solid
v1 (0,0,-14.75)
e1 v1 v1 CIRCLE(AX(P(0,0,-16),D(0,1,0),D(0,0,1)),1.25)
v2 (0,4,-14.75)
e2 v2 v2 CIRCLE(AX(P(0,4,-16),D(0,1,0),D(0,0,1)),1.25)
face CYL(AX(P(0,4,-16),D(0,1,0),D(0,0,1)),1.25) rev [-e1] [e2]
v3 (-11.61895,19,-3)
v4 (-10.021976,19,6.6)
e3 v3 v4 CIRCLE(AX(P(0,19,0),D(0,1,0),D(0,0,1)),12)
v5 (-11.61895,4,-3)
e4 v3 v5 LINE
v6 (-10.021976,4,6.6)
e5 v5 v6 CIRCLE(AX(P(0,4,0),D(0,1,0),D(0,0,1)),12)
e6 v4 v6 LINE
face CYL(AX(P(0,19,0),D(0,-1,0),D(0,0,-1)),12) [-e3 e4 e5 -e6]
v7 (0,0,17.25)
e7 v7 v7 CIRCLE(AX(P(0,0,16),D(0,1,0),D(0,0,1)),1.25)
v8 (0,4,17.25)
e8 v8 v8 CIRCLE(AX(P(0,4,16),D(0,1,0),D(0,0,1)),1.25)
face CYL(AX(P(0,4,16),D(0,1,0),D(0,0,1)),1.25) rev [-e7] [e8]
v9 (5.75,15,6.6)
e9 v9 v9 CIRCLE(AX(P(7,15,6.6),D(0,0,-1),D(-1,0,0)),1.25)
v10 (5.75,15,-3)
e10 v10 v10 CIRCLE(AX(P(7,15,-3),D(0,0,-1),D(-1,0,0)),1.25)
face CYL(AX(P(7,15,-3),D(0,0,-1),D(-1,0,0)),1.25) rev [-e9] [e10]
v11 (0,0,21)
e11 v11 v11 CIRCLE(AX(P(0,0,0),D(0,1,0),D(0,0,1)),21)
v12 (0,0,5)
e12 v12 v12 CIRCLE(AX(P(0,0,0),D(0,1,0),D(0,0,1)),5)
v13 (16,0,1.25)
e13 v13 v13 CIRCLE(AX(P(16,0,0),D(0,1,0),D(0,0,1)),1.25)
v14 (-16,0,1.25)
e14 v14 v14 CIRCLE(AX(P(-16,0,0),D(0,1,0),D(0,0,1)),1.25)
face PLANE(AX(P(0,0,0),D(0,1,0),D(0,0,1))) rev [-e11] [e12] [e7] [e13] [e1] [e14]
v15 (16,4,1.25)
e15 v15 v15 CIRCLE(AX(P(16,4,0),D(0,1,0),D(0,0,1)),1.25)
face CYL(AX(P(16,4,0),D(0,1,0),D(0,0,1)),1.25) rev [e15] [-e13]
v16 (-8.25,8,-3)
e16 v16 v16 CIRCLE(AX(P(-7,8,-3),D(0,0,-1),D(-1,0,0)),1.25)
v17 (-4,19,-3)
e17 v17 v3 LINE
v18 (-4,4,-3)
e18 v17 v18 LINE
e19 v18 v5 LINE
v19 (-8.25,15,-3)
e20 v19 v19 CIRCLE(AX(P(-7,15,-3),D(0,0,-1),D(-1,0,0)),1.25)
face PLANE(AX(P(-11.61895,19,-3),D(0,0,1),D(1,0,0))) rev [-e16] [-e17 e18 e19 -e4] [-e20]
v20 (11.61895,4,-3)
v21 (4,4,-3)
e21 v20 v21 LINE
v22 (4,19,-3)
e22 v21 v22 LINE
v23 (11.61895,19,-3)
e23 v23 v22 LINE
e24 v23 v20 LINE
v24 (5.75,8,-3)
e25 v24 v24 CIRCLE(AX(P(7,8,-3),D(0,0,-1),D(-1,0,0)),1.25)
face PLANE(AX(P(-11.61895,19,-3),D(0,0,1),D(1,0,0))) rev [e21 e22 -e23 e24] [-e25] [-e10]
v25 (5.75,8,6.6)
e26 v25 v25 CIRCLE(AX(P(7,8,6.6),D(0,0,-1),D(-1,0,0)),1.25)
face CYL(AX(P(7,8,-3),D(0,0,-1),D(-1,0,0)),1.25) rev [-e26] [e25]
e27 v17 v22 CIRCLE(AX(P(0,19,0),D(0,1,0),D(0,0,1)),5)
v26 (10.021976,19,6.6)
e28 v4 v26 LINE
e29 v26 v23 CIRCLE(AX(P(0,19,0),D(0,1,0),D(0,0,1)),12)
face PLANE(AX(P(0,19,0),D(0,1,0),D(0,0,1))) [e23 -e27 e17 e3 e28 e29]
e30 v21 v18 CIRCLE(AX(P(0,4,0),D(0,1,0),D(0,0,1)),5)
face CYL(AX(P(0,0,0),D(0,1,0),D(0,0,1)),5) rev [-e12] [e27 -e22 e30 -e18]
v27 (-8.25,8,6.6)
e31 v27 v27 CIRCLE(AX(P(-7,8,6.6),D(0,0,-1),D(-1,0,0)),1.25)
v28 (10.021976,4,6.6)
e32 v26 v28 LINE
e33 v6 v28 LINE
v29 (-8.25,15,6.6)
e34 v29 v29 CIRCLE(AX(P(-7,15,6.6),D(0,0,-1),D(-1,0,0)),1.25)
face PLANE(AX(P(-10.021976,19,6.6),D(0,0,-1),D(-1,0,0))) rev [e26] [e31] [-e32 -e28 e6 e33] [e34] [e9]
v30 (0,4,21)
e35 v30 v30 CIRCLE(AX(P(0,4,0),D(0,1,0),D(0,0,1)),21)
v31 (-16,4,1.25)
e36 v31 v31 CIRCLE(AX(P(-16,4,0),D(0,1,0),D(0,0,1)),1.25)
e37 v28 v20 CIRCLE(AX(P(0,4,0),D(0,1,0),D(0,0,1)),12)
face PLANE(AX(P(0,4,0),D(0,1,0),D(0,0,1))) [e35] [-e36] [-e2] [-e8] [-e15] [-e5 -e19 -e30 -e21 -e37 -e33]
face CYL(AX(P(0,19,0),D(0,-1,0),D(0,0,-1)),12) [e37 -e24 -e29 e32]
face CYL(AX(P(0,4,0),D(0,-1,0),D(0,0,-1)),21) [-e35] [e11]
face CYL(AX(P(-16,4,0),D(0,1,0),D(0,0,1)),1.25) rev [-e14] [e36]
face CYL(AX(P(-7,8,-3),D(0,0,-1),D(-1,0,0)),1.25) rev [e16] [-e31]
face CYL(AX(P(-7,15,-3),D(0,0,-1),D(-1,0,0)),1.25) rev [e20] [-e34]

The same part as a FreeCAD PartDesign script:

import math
import FreeCAD as App
import Part
import Sketcher
Q = App.Units.Quantity

doc = App.newDocument("Part")
body = doc.addObject("PartDesign::Body", "Body")

# Sketch on XZ plane
sketch1 = body.newObject("Sketcher::SketchObject", "Sketch")
sketch1.AttachmentSupport = (doc.getObject("XZ_Plane"), [""])
sketch1.MapMode = "FlatFace"
sketch1.addGeometry(Part.Circle(App.Vector(0, 0, 0), App.Vector(0, 0, 1), 21), False)
sketch1.addConstraint(Sketcher.Constraint("Coincident", 0, 3, -1, 1))
sketch1.addConstraint(Sketcher.Constraint("Diameter", 0, Q("42 mm")))
pad1 = body.newObject("PartDesign::Pad", "Pad")
pad1.Profile = sketch1
pad1.Length = 4
pad1.Reversed = True

# Sketch on XZ plane
sketch2 = body.newObject("Sketcher::SketchObject", "Sketch001")
sketch2.AttachmentSupport = (doc.getObject("XZ_Plane"), [""])
sketch2.MapMode = "FlatFace"
sketch2.AttachmentOffset = App.Placement(App.Vector(0, 0, -4), App.Rotation())
sketch2.addGeometry(Part.Circle(App.Vector(0, -16, 0), App.Vector(0, 0, 1), 1.2), False)
sketch2.addGeometry(Part.Circle(App.Vector(16, 0, 0), App.Vector(0, 0, 1), 1.2), False)
sketch2.addGeometry(Part.Circle(App.Vector(0, 16, 0), App.Vector(0, 0, 1), 1.2), False)
sketch2.addGeometry(Part.Circle(App.Vector(-16, 0, 0), App.Vector(0, 0, 1), 1.2), False)
sketch2.addConstraint(Sketcher.Constraint("Equal", 0, 1))
sketch2.addConstraint(Sketcher.Constraint("Equal", 1, 2))
sketch2.addConstraint(Sketcher.Constraint("Equal", 2, 3))
sketch2.addConstraint(Sketcher.Constraint("Symmetric", 0, 3, 2, 3, -1, 1))
sketch2.addConstraint(Sketcher.Constraint("Symmetric", 1, 3, 3, 3, -1, 1))
sketch2.addConstraint(Sketcher.Constraint("PointOnObject", 0, 3, -2))
sketch2.addConstraint(Sketcher.Constraint("PointOnObject", 1, 3, -1))
sketch2.addConstraint(Sketcher.Constraint("Diameter", 0, Q("2.5 mm")))
sketch2.addConstraint(Sketcher.Constraint("DistanceY", 0, 3, -1, 1, Q("16 mm")))
sketch2.addConstraint(Sketcher.Constraint("DistanceX", -1, 1, 1, 3, Q("16 mm")))
doc.recompute()
hole = body.newObject("PartDesign::Hole", "Hole")
hole.Profile = sketch2
hole.ThreadType = "None"
hole.Diameter = 2.5
hole.DepthType = "ThroughAll"
hole.Reversed = True

# Sketch on XZ plane
sketch3 = body.newObject("Sketcher::SketchObject", "Sketch002")
sketch3.AttachmentSupport = (doc.getObject("XZ_Plane"), [""])
sketch3.MapMode = "FlatFace"
sketch3.AttachmentOffset = App.Placement(App.Vector(0, 0, -4), App.Rotation())
sketch3.addGeometry(Part.LineSegment(App.Vector(12, -3, 0), App.Vector(-12, -3, 0)), False)
sketch3.addGeometry(Part.ArcOfCircle(Part.Circle(App.Vector(0, 0, 0), App.Vector(0, 0, 1), 12), math.radians(147), math.radians(194)), False)
sketch3.addGeometry(Part.LineSegment(App.Vector(-10, 7, 0), App.Vector(10, 7, 0)), False)
sketch3.addGeometry(Part.ArcOfCircle(Part.Circle(App.Vector(0, 0, 0), App.Vector(0, 0, 1), 12), math.radians(-14), math.radians(33)), False)
sketch3.addConstraint(Sketcher.Constraint("Coincident", 0, 2, 1, 2))
sketch3.addConstraint(Sketcher.Constraint("Coincident", 1, 1, 2, 1))
sketch3.addConstraint(Sketcher.Constraint("Coincident", 2, 2, 3, 2))
sketch3.addConstraint(Sketcher.Constraint("Coincident", 3, 1, 0, 1))
sketch3.addConstraint(Sketcher.Constraint("Horizontal", 0))
sketch3.addConstraint(Sketcher.Constraint("Horizontal", 2))
sketch3.addConstraint(Sketcher.Constraint("Coincident", 1, 3, -1, 1))
sketch3.addConstraint(Sketcher.Constraint("Coincident", 3, 3, -1, 1))
sketch3.addConstraint(Sketcher.Constraint("Equal", 1, 3))
sketch3.addConstraint(Sketcher.Constraint("Radius", 1, Q("12 mm")))
sketch3.addConstraint(Sketcher.Constraint("DistanceY", 0, 2, -1, 1, Q("3 mm")))
sketch3.addConstraint(Sketcher.Constraint("DistanceY", -1, 1, 1, 1, Q("6.6 mm")))
pad2 = body.newObject("PartDesign::Pad", "Pad001")
pad2.Profile = sketch3
pad2.Length = 15
pad2.Reversed = True

# Sketch on XZ plane
sketch4 = body.newObject("Sketcher::SketchObject", "Sketch003")
sketch4.AttachmentSupport = (doc.getObject("XZ_Plane"), [""])
sketch4.MapMode = "FlatFace"
sketch4.AttachmentOffset = App.Placement(App.Vector(0, 0, -19), App.Rotation())
sketch4.addGeometry(Part.Circle(App.Vector(0, 0, 0), App.Vector(0, 0, 1), 5), False)
sketch4.addConstraint(Sketcher.Constraint("Coincident", 0, 3, -1, 1))
sketch4.addConstraint(Sketcher.Constraint("Diameter", 0, Q("10 mm")))
pocket1 = body.newObject("PartDesign::Pocket", "Pocket")
pocket1.Profile = sketch4
pocket1.Type = "ThroughAll"
pocket1.Reversed = True

# Sketch on XY plane
sketch5 = body.newObject("Sketcher::SketchObject", "Sketch004")
sketch5.AttachmentSupport = (doc.getObject("XY_Plane"), [""])
sketch5.MapMode = "FlatFace"
sketch5.AttachmentOffset = App.Placement(App.Vector(0, 0, -3), App.Rotation())
sketch5.addGeometry(Part.Circle(App.Vector(-7, 8, 0), App.Vector(0, 0, 1), 1.2), False)
sketch5.addGeometry(Part.Circle(App.Vector(-7, 15, 0), App.Vector(0, 0, 1), 1.2), False)
sketch5.addGeometry(Part.Circle(App.Vector(7, 8, 0), App.Vector(0, 0, 1), 1.2), False)
sketch5.addGeometry(Part.Circle(App.Vector(7, 15, 0), App.Vector(0, 0, 1), 1.2), False)
sketch5.addConstraint(Sketcher.Constraint("Equal", 0, 1))
sketch5.addConstraint(Sketcher.Constraint("Equal", 1, 2))
sketch5.addConstraint(Sketcher.Constraint("Equal", 2, 3))
sketch5.addConstraint(Sketcher.Constraint("Symmetric", 0, 3, 2, 3, -2))
sketch5.addConstraint(Sketcher.Constraint("Symmetric", 1, 3, 3, 3, -2))
sketch5.addConstraint(Sketcher.Constraint("Vertical", 0, 3, 1, 3))
sketch5.addConstraint(Sketcher.Constraint("Diameter", 0, Q("2.5 mm")))
sketch5.addConstraint(Sketcher.Constraint("DistanceX", 0, 3, -1, 1, Q("7 mm")))
sketch5.addConstraint(Sketcher.Constraint("DistanceY", -1, 1, 0, 3, Q("8 mm")))
sketch5.addConstraint(Sketcher.Constraint("DistanceY", -1, 1, 1, 3, Q("15 mm")))
doc.recompute()
hole2 = body.newObject("PartDesign::Hole", "Hole001")
hole2.Profile = sketch5
hole2.ThreadType = "None"
hole2.Diameter = 2.5
hole2.DepthType = "ThroughAll"
hole2.Reversed = True

doc.recompute()
